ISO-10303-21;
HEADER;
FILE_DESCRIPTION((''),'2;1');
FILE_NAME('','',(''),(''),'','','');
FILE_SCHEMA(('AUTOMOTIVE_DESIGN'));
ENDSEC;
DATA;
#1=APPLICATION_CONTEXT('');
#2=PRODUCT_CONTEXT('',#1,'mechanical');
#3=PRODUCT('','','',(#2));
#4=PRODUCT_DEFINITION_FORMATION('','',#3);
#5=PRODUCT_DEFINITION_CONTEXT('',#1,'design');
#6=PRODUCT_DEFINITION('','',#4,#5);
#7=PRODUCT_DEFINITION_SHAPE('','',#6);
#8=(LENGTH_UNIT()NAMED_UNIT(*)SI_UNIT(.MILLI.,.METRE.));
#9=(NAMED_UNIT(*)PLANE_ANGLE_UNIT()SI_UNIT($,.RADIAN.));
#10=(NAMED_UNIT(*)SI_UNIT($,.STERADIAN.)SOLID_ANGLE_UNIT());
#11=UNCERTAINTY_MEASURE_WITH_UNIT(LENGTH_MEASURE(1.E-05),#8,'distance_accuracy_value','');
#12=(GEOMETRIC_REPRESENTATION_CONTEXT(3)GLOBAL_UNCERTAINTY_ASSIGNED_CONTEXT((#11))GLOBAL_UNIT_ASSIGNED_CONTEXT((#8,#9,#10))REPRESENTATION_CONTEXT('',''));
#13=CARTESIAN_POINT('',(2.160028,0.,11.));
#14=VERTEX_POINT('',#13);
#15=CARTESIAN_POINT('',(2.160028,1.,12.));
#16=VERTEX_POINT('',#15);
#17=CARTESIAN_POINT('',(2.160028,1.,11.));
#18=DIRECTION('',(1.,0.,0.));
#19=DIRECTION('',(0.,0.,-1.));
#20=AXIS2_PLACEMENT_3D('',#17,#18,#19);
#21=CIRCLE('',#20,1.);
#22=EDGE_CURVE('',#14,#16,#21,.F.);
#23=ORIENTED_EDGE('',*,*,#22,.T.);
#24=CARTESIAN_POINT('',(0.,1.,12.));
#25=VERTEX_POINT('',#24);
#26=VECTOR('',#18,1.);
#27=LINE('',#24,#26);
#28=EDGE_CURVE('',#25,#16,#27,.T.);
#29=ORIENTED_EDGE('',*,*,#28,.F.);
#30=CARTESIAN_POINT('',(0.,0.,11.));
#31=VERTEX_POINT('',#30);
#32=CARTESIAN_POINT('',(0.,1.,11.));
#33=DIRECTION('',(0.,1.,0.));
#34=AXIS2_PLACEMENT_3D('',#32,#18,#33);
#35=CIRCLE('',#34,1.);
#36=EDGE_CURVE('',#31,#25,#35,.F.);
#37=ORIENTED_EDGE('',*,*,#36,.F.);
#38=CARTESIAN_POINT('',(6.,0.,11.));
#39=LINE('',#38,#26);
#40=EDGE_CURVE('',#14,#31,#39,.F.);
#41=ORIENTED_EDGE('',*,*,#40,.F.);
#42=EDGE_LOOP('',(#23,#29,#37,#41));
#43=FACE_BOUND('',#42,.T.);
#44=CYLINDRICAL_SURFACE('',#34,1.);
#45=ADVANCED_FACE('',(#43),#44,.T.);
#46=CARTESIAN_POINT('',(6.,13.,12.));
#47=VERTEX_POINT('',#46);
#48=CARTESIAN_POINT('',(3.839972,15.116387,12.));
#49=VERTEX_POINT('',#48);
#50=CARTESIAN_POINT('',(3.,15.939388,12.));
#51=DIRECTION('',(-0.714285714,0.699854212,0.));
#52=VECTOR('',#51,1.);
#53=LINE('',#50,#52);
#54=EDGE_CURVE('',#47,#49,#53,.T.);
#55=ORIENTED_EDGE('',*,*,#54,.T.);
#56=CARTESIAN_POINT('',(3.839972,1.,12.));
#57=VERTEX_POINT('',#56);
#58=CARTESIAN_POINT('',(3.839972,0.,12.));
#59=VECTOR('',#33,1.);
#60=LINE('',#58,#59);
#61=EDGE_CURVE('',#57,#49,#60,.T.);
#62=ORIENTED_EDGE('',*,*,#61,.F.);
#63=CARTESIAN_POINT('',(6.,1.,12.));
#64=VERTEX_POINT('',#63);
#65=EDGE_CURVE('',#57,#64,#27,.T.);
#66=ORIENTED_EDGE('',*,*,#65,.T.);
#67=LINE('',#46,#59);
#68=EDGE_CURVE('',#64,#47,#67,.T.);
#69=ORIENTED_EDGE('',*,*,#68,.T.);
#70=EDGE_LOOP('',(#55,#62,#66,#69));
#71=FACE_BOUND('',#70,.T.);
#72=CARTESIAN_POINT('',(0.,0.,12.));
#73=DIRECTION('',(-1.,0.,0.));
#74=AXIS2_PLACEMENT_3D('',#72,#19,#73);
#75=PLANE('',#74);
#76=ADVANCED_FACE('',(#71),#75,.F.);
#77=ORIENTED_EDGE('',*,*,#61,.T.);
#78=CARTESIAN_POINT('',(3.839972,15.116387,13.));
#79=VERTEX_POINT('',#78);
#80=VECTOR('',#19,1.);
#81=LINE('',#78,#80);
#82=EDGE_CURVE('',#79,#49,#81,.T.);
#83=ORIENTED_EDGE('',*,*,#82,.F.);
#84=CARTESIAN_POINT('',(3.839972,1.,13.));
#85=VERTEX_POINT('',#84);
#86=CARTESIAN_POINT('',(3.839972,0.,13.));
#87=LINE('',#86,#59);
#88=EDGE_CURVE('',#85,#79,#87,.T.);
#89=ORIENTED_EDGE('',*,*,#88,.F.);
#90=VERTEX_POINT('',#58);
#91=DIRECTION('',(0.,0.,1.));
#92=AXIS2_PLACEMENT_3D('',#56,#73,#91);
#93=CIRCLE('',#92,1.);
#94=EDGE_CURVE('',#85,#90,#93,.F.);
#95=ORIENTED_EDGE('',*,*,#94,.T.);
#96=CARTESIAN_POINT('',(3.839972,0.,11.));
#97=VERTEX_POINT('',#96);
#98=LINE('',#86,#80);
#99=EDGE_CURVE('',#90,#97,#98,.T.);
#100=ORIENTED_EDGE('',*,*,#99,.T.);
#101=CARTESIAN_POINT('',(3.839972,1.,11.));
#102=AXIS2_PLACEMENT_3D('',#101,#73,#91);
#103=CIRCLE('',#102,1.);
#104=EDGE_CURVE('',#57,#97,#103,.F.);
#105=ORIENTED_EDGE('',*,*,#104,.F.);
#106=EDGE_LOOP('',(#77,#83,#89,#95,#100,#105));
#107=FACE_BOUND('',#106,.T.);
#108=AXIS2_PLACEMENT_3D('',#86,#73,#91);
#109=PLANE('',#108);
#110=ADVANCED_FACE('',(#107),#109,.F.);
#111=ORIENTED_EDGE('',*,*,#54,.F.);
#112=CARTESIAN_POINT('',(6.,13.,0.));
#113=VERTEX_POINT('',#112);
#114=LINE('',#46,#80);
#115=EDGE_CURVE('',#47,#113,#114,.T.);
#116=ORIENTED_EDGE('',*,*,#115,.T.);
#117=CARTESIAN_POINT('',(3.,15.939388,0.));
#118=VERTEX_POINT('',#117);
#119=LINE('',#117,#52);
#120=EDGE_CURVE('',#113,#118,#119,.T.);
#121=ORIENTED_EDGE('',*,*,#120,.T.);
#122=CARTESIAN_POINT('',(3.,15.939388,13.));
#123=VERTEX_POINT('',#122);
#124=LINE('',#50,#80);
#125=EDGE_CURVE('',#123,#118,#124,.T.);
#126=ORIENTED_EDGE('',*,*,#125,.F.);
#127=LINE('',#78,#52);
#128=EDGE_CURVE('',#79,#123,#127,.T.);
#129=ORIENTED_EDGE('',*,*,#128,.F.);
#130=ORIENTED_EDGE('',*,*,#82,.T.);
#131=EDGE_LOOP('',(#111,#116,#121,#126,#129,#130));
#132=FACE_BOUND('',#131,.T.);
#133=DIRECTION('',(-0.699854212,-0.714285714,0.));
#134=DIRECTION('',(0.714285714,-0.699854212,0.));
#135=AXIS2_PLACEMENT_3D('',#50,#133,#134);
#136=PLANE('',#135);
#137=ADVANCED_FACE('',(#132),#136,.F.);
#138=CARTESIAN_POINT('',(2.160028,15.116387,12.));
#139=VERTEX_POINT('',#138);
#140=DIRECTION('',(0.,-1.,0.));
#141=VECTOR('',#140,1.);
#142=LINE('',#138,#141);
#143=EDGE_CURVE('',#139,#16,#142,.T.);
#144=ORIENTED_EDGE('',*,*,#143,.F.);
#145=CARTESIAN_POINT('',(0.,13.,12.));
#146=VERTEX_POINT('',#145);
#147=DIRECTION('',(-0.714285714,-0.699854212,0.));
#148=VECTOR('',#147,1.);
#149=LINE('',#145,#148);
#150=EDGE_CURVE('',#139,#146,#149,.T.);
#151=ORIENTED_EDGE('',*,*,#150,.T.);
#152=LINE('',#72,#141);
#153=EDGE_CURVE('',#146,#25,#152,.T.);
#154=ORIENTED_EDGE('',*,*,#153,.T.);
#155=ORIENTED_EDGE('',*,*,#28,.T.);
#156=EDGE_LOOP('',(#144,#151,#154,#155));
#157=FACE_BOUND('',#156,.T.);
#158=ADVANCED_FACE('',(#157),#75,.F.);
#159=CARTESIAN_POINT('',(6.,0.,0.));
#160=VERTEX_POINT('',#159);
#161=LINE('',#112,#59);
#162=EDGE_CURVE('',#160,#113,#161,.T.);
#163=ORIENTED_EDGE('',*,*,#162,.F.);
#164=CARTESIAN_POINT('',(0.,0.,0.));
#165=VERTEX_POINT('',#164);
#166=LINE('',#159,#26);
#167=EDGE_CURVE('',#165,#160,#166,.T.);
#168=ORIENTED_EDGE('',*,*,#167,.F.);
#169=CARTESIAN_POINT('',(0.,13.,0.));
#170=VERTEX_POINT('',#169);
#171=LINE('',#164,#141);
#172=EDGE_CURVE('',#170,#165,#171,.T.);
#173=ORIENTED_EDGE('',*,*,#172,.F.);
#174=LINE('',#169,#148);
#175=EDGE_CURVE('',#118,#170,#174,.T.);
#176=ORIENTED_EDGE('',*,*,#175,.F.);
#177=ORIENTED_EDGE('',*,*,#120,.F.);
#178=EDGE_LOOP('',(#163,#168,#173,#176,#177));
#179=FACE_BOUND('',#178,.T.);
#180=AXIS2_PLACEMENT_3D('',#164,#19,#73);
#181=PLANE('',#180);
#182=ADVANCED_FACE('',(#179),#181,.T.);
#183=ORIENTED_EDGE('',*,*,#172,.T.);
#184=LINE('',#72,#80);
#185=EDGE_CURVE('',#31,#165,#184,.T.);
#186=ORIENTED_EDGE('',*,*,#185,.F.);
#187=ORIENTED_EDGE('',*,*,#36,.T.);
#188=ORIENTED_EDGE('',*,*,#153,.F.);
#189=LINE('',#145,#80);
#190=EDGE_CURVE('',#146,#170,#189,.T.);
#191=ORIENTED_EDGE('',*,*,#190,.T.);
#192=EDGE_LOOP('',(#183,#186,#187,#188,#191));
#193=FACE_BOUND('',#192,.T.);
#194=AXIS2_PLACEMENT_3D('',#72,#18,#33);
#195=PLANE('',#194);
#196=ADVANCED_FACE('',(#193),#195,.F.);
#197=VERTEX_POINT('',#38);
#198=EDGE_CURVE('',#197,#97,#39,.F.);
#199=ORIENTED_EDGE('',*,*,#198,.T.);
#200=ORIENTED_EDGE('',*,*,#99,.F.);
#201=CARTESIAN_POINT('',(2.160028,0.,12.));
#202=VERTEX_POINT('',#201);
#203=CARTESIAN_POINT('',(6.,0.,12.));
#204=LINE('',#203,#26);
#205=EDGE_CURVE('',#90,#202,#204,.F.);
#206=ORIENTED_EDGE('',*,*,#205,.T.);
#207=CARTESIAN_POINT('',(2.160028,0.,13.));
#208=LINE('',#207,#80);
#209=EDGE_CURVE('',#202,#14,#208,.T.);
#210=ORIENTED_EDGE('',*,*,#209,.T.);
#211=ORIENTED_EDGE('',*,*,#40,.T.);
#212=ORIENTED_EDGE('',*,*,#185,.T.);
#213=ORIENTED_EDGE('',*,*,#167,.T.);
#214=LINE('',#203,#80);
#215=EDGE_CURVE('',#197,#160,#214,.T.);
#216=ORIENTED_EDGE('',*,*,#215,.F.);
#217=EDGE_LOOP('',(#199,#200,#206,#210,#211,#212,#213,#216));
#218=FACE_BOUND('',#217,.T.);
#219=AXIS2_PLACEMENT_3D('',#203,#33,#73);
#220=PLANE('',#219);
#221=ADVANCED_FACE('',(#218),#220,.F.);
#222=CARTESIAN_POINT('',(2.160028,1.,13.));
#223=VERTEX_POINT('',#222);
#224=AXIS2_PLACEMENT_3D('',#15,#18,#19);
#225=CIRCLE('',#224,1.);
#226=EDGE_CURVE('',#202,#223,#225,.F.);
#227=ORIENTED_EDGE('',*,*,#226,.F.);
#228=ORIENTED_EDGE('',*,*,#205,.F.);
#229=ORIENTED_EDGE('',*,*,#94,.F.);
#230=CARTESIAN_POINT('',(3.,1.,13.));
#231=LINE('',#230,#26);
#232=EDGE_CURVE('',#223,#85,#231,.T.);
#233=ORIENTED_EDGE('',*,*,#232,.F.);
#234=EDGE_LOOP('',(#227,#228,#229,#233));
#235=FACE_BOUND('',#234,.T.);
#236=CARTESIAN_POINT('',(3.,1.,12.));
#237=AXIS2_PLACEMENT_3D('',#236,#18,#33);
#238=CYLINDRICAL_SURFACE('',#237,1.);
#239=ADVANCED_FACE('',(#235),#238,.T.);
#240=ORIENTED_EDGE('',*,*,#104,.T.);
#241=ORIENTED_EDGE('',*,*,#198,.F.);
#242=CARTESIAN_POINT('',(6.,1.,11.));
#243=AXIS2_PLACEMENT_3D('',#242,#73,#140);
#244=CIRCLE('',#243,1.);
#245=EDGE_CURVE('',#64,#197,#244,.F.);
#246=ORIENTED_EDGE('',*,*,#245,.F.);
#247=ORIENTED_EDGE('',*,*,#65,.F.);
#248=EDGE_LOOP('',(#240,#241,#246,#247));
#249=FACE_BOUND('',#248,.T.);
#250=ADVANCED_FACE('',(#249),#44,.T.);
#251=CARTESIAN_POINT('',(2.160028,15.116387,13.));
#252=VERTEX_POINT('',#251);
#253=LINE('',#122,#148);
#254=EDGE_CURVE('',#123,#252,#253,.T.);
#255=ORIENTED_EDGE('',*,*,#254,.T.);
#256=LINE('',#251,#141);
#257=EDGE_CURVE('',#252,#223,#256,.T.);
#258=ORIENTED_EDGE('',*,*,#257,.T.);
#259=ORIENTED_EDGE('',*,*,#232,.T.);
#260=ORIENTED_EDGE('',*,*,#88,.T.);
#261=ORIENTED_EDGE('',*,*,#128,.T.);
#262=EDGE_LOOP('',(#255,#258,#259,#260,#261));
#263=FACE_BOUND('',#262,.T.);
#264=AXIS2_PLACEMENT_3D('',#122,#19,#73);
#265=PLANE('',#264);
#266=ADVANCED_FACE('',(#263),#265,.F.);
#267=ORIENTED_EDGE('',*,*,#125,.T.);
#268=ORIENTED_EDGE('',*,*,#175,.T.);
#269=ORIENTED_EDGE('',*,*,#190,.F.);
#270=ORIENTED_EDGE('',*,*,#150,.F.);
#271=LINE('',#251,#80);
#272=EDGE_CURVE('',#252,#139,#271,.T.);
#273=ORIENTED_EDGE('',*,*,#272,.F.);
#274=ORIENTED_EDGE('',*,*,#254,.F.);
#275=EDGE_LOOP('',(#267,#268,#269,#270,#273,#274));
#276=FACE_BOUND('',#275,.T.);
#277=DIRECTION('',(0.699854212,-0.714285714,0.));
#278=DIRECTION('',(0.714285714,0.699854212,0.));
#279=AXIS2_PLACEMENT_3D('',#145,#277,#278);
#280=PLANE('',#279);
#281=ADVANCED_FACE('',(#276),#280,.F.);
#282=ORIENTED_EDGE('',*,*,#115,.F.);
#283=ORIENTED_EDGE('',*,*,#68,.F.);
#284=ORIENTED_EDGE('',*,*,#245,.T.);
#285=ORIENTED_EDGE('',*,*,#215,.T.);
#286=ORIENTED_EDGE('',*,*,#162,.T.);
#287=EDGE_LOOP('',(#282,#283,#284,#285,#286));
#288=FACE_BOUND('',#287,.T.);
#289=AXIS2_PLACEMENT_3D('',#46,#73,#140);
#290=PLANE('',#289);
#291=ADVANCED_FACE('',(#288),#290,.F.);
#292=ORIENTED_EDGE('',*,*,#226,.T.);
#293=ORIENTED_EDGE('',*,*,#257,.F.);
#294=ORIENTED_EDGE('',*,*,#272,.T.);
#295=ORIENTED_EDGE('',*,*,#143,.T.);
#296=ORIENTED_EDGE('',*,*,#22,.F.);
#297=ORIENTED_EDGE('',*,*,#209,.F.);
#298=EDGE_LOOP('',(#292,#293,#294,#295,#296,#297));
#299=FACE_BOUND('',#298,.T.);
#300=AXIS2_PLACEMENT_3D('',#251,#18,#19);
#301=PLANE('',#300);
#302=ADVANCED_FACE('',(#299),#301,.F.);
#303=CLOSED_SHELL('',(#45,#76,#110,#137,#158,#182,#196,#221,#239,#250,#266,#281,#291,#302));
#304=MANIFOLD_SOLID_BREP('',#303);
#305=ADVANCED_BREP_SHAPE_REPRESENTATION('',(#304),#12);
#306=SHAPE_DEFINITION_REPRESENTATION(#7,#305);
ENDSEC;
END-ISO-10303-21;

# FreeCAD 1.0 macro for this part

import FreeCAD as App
import Part
import Sketcher


def edges_at(feature, points):
    """Names of the edges that pass closest to the given points."""
    edges = feature.Shape.Edges
    near = lambda p: min(range(len(edges)), key=lambda i: edges[i].distToShape(Part.Vertex(*p))[0])
    return sorted({f"Edge{near(p) + 1}" for p in points})


def add_polygon(sketch, points):
    """Adds a closed chain of lines whose ends are joined by coincident constraints."""
    first, n = sketch.GeometryCount, len(points)
    for a, b in zip(points, points[1:] + points[:1]):
        sketch.addGeometry(Part.LineSegment(App.Vector(*a, 0), App.Vector(*b, 0)), False)
    for i in range(n):
        sketch.addConstraint(Sketcher.Constraint("Coincident", first + i, 2, first + (i + 1) % n, 1))

doc = App.newDocument("Part")
body = doc.addObject("PartDesign::Body", "Body")

sketch1 = doc.addObject("Sketcher::SketchObject", "Sketch")
body.addObject(sketch1)
sketch1.AttachmentSupport = (doc.XY_Plane, [""])
sketch1.MapMode = "FlatFace"
add_polygon(sketch1, [(0, 13), (0, 0), (6, 0), (6, 13), (3, 15.9)])
sketch1.addConstraint([
    Sketcher.Constraint("Vertical", 0),
    Sketcher.Constraint("Horizontal", 1),
    Sketcher.Constraint("Vertical", 2),
    Sketcher.Constraint("Coincident", 0, 2, -1, 1),
    Sketcher.Constraint("Horizontal", 2, 2, 4, 2),
    Sketcher.Constraint("Equal", 3, 4),
    Sketcher.Constraint("DistanceX", 1, 1, 1, 2, 6.0),
    Sketcher.Constraint("DistanceY", 0, 2, 0, 1, 13.0),
    Sketcher.Constraint("Distance", 3, 4.2),
])
pad1 = doc.addObject("PartDesign::Pad", "Pad")
body.addObject(pad1)
pad1.Profile = sketch1
pad1.Length = 12

sketch2 = doc.addObject("Sketcher::SketchObject", "Sketch001")
body.addObject(sketch2)
sketch2.AttachmentSupport = (doc.XY_Plane, [""])
sketch2.MapMode = "FlatFace"
sketch2.AttachmentOffset = App.Placement(App.Vector(0, 0, 12), App.Rotation())
add_polygon(sketch2, [(2.2, 15.1), (2.2, 0), (3.8, 0), (3.8, 15.1), (3, 15.9)])
sketch2.addConstraint([
    Sketcher.Constraint("Vertical", 0),
    Sketcher.Constraint("Horizontal", 1),
    Sketcher.Constraint("Vertical", 2),
    Sketcher.Constraint("PointOnObject", 0, 2, -1),
    Sketcher.Constraint("Horizontal", 2, 2, 4, 2),
    Sketcher.Constraint("Equal", 3, 4),
    Sketcher.Constraint("DistanceX", -1, 1, 3, 2, 3.0),
    Sketcher.Constraint("DistanceY", 2, 2, 3, 2, 0.823001),
    Sketcher.Constraint("Distance", 3, 1.17596),
    Sketcher.Constraint("DistanceY", 0, 2, 0, 1, 15.116387),
])
pad2 = doc.addObject("PartDesign::Pad", "Pad001")
body.addObject(pad2)
pad2.Profile = sketch2
pad2.Length = 1
doc.recompute()

fillet = doc.addObject("PartDesign::Fillet", "Fillet")
body.addObject(fillet)
fillet.Base = (pad2, edges_at(pad2, [(1.08, 0, 12)]))
fillet.Radius = 1
doc.recompute()

fillet2 = doc.addObject("PartDesign::Fillet", "Fillet001")
body.addObject(fillet2)
fillet2.Base = (fillet, edges_at(fillet, [(4.92, 0, 12)]))
fillet2.Radius = 1
doc.recompute()

fillet3 = doc.addObject("PartDesign::Fillet", "Fillet002")
body.addObject(fillet3)
fillet3.Base = (fillet2, edges_at(fillet2, [(3, 0, 13)]))
fillet3.Radius = 1

doc.recompute()
